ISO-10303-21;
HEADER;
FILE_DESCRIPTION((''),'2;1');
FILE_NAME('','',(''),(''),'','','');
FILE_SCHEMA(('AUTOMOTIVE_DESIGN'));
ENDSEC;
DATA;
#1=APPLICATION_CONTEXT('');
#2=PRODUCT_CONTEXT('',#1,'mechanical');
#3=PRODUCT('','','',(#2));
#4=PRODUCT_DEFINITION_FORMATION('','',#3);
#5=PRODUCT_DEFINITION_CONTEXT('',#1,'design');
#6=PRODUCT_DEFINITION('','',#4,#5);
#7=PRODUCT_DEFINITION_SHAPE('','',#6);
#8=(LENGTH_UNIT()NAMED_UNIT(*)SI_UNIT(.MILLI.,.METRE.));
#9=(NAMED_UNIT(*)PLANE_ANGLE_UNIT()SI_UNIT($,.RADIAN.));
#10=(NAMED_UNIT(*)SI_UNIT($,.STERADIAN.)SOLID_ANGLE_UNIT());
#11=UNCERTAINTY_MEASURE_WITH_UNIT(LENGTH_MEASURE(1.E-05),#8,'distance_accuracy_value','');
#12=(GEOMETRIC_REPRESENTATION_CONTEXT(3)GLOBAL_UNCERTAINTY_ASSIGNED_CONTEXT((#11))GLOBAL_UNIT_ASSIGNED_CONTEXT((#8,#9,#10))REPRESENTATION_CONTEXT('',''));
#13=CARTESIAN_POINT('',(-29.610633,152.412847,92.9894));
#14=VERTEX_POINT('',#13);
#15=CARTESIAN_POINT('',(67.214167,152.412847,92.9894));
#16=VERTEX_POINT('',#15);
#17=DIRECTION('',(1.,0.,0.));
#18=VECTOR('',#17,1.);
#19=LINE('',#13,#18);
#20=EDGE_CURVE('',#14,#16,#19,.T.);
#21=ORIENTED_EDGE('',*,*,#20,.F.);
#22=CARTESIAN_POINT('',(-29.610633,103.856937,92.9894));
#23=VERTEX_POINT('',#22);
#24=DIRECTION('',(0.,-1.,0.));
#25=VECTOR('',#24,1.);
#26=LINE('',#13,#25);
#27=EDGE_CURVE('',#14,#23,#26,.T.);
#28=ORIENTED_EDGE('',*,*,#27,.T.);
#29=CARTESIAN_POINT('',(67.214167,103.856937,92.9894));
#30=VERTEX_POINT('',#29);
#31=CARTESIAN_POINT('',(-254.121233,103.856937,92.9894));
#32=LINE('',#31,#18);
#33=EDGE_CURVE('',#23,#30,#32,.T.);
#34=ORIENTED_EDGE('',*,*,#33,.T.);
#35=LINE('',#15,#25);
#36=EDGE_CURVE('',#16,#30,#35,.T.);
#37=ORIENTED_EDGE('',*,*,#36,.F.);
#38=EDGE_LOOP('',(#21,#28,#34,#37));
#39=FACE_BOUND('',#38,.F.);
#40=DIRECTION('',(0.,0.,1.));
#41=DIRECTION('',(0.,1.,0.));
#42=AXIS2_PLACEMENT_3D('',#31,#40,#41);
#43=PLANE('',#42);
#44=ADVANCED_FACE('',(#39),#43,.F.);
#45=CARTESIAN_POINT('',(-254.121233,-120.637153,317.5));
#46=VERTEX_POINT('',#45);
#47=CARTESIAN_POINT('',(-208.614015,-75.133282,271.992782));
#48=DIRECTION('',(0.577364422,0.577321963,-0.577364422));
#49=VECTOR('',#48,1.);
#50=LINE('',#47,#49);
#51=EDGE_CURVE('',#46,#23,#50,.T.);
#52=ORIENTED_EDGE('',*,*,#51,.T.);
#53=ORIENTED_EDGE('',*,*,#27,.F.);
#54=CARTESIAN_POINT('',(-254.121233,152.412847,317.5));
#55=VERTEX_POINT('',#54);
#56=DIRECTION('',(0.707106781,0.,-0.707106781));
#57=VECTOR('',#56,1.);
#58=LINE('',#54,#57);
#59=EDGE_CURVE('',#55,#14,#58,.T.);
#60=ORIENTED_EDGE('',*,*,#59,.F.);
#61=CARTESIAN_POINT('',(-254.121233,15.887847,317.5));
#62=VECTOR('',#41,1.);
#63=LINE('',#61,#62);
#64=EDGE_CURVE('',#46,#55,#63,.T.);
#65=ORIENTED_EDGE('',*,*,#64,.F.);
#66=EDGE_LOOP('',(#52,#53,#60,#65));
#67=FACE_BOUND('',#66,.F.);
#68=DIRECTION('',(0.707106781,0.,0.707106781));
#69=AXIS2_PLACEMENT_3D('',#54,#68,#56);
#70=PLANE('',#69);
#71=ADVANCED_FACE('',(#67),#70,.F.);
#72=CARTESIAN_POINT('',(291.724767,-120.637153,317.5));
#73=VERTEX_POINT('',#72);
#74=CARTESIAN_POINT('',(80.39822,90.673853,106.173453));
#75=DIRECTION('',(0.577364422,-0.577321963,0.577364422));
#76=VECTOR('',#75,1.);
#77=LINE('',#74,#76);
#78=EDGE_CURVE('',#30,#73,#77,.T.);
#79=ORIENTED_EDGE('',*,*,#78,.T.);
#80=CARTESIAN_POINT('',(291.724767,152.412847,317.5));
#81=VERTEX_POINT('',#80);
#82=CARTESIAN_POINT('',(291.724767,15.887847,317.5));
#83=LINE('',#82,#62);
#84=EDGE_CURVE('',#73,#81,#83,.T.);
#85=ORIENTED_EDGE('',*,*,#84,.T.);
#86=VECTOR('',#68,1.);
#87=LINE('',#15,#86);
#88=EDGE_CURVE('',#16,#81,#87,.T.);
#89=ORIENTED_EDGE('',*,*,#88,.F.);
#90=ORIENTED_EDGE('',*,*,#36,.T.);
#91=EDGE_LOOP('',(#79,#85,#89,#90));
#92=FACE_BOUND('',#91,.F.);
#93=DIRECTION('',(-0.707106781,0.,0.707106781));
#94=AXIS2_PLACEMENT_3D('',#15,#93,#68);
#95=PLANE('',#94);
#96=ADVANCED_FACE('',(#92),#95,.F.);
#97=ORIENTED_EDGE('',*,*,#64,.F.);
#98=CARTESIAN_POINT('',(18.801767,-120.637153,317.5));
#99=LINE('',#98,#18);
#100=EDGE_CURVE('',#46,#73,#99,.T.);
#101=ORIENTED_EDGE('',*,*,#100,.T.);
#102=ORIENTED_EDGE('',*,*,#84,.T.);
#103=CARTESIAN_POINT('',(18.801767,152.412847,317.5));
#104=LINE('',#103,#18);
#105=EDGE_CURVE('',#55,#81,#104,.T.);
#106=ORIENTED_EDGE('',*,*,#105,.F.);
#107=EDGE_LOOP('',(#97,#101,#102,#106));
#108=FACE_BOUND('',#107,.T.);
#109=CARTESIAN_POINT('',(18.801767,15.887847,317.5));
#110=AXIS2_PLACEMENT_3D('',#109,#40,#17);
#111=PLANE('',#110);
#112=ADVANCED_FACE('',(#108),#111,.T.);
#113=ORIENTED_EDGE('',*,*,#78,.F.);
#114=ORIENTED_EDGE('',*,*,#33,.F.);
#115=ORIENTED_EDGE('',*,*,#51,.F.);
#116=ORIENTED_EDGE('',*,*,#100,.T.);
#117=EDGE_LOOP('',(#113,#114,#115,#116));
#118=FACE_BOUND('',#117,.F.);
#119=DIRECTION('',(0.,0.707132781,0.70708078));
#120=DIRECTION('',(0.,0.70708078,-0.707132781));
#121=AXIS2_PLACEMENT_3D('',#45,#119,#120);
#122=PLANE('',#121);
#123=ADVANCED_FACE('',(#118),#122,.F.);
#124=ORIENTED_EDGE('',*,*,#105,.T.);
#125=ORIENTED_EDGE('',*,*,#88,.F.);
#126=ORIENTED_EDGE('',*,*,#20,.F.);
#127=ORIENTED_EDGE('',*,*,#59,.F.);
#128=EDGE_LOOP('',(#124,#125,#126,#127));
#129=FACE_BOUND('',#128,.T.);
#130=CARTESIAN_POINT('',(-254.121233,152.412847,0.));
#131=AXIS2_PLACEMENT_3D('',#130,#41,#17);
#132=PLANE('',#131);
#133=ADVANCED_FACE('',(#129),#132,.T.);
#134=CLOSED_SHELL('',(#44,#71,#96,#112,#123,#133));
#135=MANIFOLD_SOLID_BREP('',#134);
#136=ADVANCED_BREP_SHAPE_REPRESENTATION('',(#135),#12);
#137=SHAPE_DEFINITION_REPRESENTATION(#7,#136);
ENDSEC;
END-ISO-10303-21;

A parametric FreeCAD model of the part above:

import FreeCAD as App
import Part
import Sketcher
from FreeCAD import Vector
Q = App.Units.Quantity

doc = App.newDocument("Part")
body = doc.addObject("PartDesign::Body", "Body")

sketch1 = body.newObject("Sketcher::SketchObject", "Sketch")
sketch1.AttachmentSupport = (doc.getObject("XY_Plane"), [""])
sketch1.MapMode = "FlatFace"
sketch1.addGeometry(Part.LineSegment(Vector(-254.121233, 152.412847, 0), Vector(-254.121233, -120.637153, 0)), False)
sketch1.addGeometry(Part.LineSegment(Vector(-254.121233, -120.637153, 0), Vector(291.724767, -120.637153, 0)), False)
sketch1.addGeometry(Part.LineSegment(Vector(291.724767, -120.637153, 0), Vector(291.724767, 152.412847, 0)), False)
sketch1.addGeometry(Part.LineSegment(Vector(291.724767, 152.412847, 0), Vector(-254.121233, 152.412847, 0)), False)
sketch1.addConstraint(Sketcher.Constraint("Coincident", 0, 2, 1, 1))
sketch1.addConstraint(Sketcher.Constraint("Coincident", 1, 2, 2, 1))
sketch1.addConstraint(Sketcher.Constraint("Coincident", 2, 2, 3, 1))
sketch1.addConstraint(Sketcher.Constraint("Coincident", 3, 2, 0, 1))
sketch1.addConstraint(Sketcher.Constraint("Vertical", 0))
sketch1.addConstraint(Sketcher.Constraint("Horizontal", 1))
sketch1.addConstraint(Sketcher.Constraint("Vertical", 2))
sketch1.addConstraint(Sketcher.Constraint("Horizontal", 3))
sketch1.addConstraint(Sketcher.Constraint("DistanceX", 1, 1, 1, 2, Q("21.49 in")))
sketch1.addConstraint(Sketcher.Constraint("DistanceY", 0, 2, 0, 1, Q("10.75 in")))
sketch1.addConstraint(Sketcher.Constraint("DistanceX", 0, 2, -1, 1, Q("254.121233 mm")))
sketch1.addConstraint(Sketcher.Constraint("DistanceY", 0, 2, -1, 1, Q("120.637153 mm")))
pad1 = body.newObject("PartDesign::Pad", "Pad")
pad1.Profile = sketch1
pad1.Length = Q("12.5 in")

sketch2 = body.newObject("Sketcher::SketchObject", "Sketch001")
sketch2.AttachmentSupport = (doc.getObject("YZ_Plane"), [""])
sketch2.MapMode = "FlatFace"
sketch2.AttachmentOffset = App.Placement(Vector(0, 0, -254.121233), App.Rotation())
sketch2.addGeometry(Part.LineSegment(Vector(103.856937, 92.9894, 0), Vector(152.412847, 92.9894, 0)), False)
sketch2.addGeometry(Part.LineSegment(Vector(152.412847, 92.9894, 0), Vector(152.412847, 0, 0)), False)
sketch2.addGeometry(Part.LineSegment(Vector(152.412847, 0, 0), Vector(-120.637153, 0, 0)), False)
sketch2.addGeometry(Part.LineSegment(Vector(-120.637153, 0, 0), Vector(-120.637153, 317.5, 0)), False)
sketch2.addGeometry(Part.LineSegment(Vector(-120.637153, 317.5, 0), Vector(103.856937, 92.9894, 0)), False)
sketch2.addConstraint(Sketcher.Constraint("Coincident", 0, 2, 1, 1))
sketch2.addConstraint(Sketcher.Constraint("Coincident", 1, 2, 2, 1))
sketch2.addConstraint(Sketcher.Constraint("Coincident", 2, 2, 3, 1))
sketch2.addConstraint(Sketcher.Constraint("Coincident", 3, 2, 4, 1))
sketch2.addConstraint(Sketcher.Constraint("Coincident", 4, 2, 0, 1))
sketch2.addConstraint(Sketcher.Constraint("Horizontal", 0))
sketch2.addConstraint(Sketcher.Constraint("Vertical", 1))
sketch2.addConstraint(Sketcher.Constraint("Horizontal", 2))
sketch2.addConstraint(Sketcher.Constraint("Vertical", 3))
sketch2.addConstraint(Sketcher.Constraint("PointOnObject", 1, 2, -1))
sketch2.addConstraint(Sketcher.Constraint("DistanceY", 3, 1, 3, 2, Q("12.5 in")))
sketch2.addConstraint(Sketcher.Constraint("DistanceX", 2, 2, 2, 1, Q("10.75 in")))
sketch2.addConstraint(Sketcher.Constraint("DistanceY", 1, 2, 1, 1, Q("3.661 in")))
sketch2.addConstraint(Sketcher.Constraint("DistanceX", 0, 1, 0, 2, Q("48.55591 mm")))
sketch2.addConstraint(Sketcher.Constraint("DistanceX", -1, 1, 0, 2, Q("152.412847 mm")))
pocket1 = body.newObject("PartDesign::Pocket", "Pocket")
pocket1.Profile = sketch2
pocket1.Type = "ThroughAll"
pocket1.Reversed = True

sketch3 = body.newObject("Sketcher::SketchObject", "Sketch002")
sketch3.AttachmentSupport = (doc.getObject("XZ_Plane"), [""])
sketch3.MapMode = "FlatFace"
sketch3.AttachmentOffset = App.Placement(Vector(0, 0, -152.412847), App.Rotation())
sketch3.addGeometry(Part.LineSegment(Vector(-254.121233, 0, 0), Vector(-254.121233, 317.5, 0)), False)
sketch3.addGeometry(Part.LineSegment(Vector(-254.121233, 317.5, 0), Vector(-29.610633, 92.9894, 0)), False)
sketch3.addGeometry(Part.LineSegment(Vector(-29.610633, 92.9894, 0), Vector(67.214167, 92.9894, 0)), False)
sketch3.addGeometry(Part.LineSegment(Vector(67.214167, 92.9894, 0), Vector(291.724767, 317.5, 0)), False)
sketch3.addGeometry(Part.LineSegment(Vector(291.724767, 317.5, 0), Vector(291.724767, 0, 0)), False)
sketch3.addGeometry(Part.LineSegment(Vector(291.724767, 0, 0), Vector(-254.121233, 0, 0)), False)
sketch3.addConstraint(Sketcher.Constraint("Coincident", 0, 2, 1, 1))
sketch3.addConstraint(Sketcher.Constraint("Coincident", 1, 2, 2, 1))
sketch3.addConstraint(Sketcher.Constraint("Coincident", 2, 2, 3, 1))
sketch3.addConstraint(Sketcher.Constraint("Coincident", 3, 2, 4, 1))
sketch3.addConstraint(Sketcher.Constraint("Coincident", 4, 2, 5, 1))
sketch3.addConstraint(Sketcher.Constraint("Coincident", 5, 2, 0, 1))
sketch3.addConstraint(Sketcher.Constraint("Vertical", 0))
sketch3.addConstraint(Sketcher.Constraint("Horizontal", 2))
sketch3.addConstraint(Sketcher.Constraint("Vertical", 4))
sketch3.addConstraint(Sketcher.Constraint("Horizontal", 5))
sketch3.addConstraint(Sketcher.Constraint("PointOnObject", 4, 2, -1))
sketch3.addConstraint(Sketcher.Constraint("Perpendicular", 1, 3))
sketch3.addConstraint(Sketcher.Constraint("Horizontal", 0, 2, 3, 2))
sketch3.addConstraint(Sketcher.Constraint("Equal", 1, 3))
sketch3.addConstraint(Sketcher.Constraint("DistanceY", 0, 1, 0, 2, Q("12.5 in")))
sketch3.addConstraint(Sketcher.Constraint("DistanceX", 5, 2, 5, 1, Q("21.49 in")))
sketch3.addConstraint(Sketcher.Constraint("DistanceX", 2, 1, 2, 2, Q("3.812 in")))
sketch3.addConstraint(Sketcher.Constraint("DistanceX", 0, 2, -1, 1, Q("254.121233 mm")))
pocket2 = body.newObject("PartDesign::Pocket", "Pocket001")
pocket2.Profile = sketch3
pocket2.Type = "ThroughAll"
pocket2.Reversed = True

doc.recompute()
